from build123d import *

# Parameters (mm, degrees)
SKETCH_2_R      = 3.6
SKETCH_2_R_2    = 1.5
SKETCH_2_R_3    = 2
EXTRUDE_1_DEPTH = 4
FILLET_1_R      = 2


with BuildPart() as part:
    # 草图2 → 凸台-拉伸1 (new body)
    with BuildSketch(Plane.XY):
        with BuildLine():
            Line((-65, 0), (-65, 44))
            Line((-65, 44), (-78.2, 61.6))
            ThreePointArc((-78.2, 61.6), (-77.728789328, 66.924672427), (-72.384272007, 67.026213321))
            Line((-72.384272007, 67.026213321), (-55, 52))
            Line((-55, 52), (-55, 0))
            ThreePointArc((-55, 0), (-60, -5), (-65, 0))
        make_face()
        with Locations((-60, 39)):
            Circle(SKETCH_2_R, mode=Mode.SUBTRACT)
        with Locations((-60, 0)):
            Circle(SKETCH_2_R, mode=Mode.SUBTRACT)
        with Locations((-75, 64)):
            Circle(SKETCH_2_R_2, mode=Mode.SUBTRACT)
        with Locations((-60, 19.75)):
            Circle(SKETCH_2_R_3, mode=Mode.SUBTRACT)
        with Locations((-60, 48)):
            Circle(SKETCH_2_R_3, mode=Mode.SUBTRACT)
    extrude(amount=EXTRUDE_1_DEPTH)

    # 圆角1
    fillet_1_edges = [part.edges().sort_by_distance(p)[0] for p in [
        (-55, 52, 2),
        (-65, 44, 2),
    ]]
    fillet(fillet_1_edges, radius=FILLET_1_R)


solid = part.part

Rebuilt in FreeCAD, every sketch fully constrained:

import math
import FreeCAD as App
import Part
import Sketcher
from FreeCAD import Vector
Q = App.Units.Quantity


def edges_at(feature, points):
    """Names of the edges that pass closest to the given points."""
    edges = feature.Shape.Edges
    near = lambda p: min(range(len(edges)), key=lambda i: edges[i].distToShape(Part.Vertex(*p))[0])
    return sorted({f"Edge{near(p) + 1}" for p in points})

doc = App.newDocument("Part")
body = doc.addObject("PartDesign::Body", "Body")

# Sketch on XY plane
sketch1 = body.newObject("Sketcher::SketchObject", "Sketch")
sketch1.AttachmentSupport = (doc.getObject("XY_Plane"), [""])
sketch1.MapMode = "FlatFace"
sketch1.addGeometry([
    Part.LineSegment(Vector(-65, 44, 0), Vector(-65, 0, 0)),  # 0
    Part.ArcOfCircle(Part.Circle(Vector(-60, 0, 0), Vector(0, 0, 1), 5), math.radians(180), math.radians(360)),  # 1
    Part.LineSegment(Vector(-55, 0, 0), Vector(-55, 52, 0)),  # 2
    Part.LineSegment(Vector(-55, 52, 0), Vector(-72.4, 67, 0)),  # 3
    Part.ArcOfCircle(Part.Circle(Vector(-75, 64, 0), Vector(0, 0, 1), 4), math.radians(49), math.radians(217)),  # 4
    Part.LineSegment(Vector(-78.2, 61.6, 0), Vector(-65, 44, 0)),  # 5
    Part.Circle(Vector(-60, 0, 0), Vector(0, 0, 1), 3.6),  # 6
    Part.Circle(Vector(-60, 19.8, 0), Vector(0, 0, 1), 2),  # 7
    Part.Circle(Vector(-60, 39, 0), Vector(0, 0, 1), 3.6),  # 8
    Part.Circle(Vector(-60, 48, 0), Vector(0, 0, 1), 2),  # 9
    Part.Circle(Vector(-75, 64, 0), Vector(0, 0, 1), 1.5),  # 10
], False)
sketch1.addConstraint([
    Sketcher.Constraint("Tangent", 0, 2, 1, 1),
    Sketcher.Constraint("Tangent", 1, 2, 2, 1),
    Sketcher.Constraint("Coincident", 2, 2, 3, 1),
    Sketcher.Constraint("Tangent", 3, 2, 4, 1),
    Sketcher.Constraint("Tangent", 4, 2, 5, 1),
    Sketcher.Constraint("Coincident", 5, 2, 0, 1),
    Sketcher.Constraint("Vertical", 0),
    Sketcher.Constraint("Vertical", 2),
    Sketcher.Constraint("Coincident", 6, 3, 1, 3),
    Sketcher.Constraint("Coincident", 10, 3, 4, 3),
    Sketcher.Constraint("Equal", 6, 8),
    Sketcher.Constraint("Equal", 7, 9),
    Sketcher.Constraint("PointOnObject", 1, 3, -1),
    Sketcher.Constraint("Vertical", 6, 3, 7, 3),
    Sketcher.Constraint("Vertical", 7, 3, 8, 3),
    Sketcher.Constraint("Vertical", 8, 3, 9, 3),
    Sketcher.Constraint("Diameter", 7, Q("4 mm")),
    Sketcher.Constraint("Diameter", 10, Q("3 mm")),
    Sketcher.Constraint("Radius", 1, Q("5 mm")),
    Sketcher.Constraint("Radius", 4, Q("4 mm")),
    Sketcher.Constraint("Diameter", 6, Q("7.2 mm")),
    Sketcher.Constraint("DistanceY", 0, 2, 0, 1, Q("44 mm")),
    Sketcher.Constraint("DistanceY", 2, 1, 2, 2, Q("52 mm")),
    Sketcher.Constraint("Distance", 5, Q("22 mm")),
    Sketcher.Constraint("DistanceX", 1, 3, -1, 1, Q("60 mm")),
    Sketcher.Constraint("DistanceX", 4, 3, -1, 1, Q("75 mm")),
    Sketcher.Constraint("DistanceY", -1, 1, 8, 3, Q("39 mm")),
    Sketcher.Constraint("DistanceY", -1, 1, 9, 3, Q("48 mm")),
    Sketcher.Constraint("DistanceY", -1, 1, 7, 3, Q("19.75 mm")),
])
pad1 = body.newObject("PartDesign::Pad", "Pad")
pad1.Profile = sketch1
pad1.Length = 4
doc.recompute()

fillet = body.newObject("PartDesign::Fillet", "Fillet")
fillet.Base = (pad1, edges_at(pad1, [(-55, 52, 2), (-65, 44, 2)]))
fillet.Radius = 2

doc.recompute()
